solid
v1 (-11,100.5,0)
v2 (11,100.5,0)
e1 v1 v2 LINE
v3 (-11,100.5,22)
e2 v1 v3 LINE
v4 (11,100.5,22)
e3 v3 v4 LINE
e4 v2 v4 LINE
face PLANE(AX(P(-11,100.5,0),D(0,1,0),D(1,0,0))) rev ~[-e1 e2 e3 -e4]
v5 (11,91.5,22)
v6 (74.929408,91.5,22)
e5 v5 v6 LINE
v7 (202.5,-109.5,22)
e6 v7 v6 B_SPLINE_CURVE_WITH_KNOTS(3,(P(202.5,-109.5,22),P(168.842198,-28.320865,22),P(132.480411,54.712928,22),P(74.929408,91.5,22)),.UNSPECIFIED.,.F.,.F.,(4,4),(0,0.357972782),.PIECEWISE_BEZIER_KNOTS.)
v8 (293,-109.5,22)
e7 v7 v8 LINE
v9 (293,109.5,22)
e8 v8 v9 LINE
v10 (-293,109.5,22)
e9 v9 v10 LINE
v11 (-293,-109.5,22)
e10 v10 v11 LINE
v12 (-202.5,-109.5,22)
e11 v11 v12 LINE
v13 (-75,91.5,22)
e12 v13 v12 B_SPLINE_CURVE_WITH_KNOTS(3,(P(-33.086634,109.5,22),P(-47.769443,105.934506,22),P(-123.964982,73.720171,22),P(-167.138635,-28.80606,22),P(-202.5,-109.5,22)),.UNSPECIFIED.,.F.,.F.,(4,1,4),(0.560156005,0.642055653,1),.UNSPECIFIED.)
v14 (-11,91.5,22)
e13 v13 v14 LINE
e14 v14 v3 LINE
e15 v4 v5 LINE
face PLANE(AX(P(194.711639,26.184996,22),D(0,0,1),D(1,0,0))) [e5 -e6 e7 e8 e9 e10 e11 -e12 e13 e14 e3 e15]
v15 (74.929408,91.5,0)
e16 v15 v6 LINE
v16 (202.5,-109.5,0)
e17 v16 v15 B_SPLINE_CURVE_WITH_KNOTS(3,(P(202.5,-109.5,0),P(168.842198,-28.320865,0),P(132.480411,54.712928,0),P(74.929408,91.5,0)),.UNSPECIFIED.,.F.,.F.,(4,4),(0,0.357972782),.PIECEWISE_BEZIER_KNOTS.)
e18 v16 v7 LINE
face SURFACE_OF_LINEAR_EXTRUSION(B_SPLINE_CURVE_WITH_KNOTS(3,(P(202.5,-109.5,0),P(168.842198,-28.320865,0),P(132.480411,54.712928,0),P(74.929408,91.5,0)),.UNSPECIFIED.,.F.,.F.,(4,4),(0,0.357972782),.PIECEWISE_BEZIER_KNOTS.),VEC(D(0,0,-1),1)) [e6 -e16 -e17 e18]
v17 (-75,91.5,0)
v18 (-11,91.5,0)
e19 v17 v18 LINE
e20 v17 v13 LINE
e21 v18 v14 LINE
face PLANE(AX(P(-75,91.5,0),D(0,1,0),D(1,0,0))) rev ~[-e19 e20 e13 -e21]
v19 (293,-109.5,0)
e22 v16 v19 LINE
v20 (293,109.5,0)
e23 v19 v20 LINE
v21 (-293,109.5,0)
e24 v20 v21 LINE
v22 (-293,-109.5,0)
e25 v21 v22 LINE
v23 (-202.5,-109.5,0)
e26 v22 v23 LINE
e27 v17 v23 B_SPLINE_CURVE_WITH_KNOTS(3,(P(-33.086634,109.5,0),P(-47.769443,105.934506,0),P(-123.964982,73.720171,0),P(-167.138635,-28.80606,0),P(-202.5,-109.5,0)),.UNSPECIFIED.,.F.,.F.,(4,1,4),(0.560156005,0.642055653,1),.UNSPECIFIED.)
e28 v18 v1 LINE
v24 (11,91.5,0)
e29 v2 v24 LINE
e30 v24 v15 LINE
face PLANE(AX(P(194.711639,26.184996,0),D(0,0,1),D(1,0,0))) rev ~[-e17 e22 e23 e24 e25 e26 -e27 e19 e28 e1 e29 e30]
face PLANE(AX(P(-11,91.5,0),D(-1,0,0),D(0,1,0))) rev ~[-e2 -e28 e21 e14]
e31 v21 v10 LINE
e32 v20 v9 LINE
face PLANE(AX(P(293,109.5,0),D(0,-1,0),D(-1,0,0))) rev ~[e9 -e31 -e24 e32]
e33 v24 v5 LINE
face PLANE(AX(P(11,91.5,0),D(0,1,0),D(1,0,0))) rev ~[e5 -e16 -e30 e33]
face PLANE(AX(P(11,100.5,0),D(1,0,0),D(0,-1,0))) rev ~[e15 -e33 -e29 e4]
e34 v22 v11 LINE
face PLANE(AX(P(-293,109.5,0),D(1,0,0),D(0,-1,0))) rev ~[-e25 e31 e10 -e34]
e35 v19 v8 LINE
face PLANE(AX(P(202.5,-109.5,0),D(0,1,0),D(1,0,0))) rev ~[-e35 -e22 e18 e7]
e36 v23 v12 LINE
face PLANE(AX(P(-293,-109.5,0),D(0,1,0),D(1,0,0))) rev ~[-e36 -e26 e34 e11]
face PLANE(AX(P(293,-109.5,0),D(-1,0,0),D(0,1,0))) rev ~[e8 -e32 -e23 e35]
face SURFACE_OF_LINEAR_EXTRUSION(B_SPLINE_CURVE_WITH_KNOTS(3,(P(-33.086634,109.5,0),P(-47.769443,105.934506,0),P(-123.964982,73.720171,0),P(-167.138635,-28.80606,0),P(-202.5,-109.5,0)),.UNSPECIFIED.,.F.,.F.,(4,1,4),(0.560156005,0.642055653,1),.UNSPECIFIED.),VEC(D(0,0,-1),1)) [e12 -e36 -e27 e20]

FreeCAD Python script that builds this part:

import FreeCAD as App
import Part
import Sketcher
from FreeCAD import Vector

doc = App.newDocument("Part")
body = doc.addObject("PartDesign::Body", "Body")

sketch1 = doc.addObject("Sketcher::SketchObject", "Sketch")
body.addObject(sketch1)
sketch1.AttachmentSupport = (doc.XY_Plane, [""])
sketch1.MapMode = "FlatFace"
sketch1.addGeometry([
    Part.LineSegment(Vector(202.5, -109.5, 0), Vector(293, -109.5, 0)),
    Part.LineSegment(Vector(293, -109.5, 0), Vector(293, 109.5, 0)),
    Part.LineSegment(Vector(293, 109.5, 0), Vector(-293, 109.5, 0)),
    Part.LineSegment(Vector(-293, 109.5, 0), Vector(-293, -109.5, 0)),
    Part.LineSegment(Vector(-293, -109.5, 0), Vector(-202.5, -109.5, 0)),
    Part.BSplineCurve([Vector(-75, 91.5, 0), Vector(-132.003984, 54.629625, 0), Vector(-167.138635, -28.80606, 0), Vector(-202.5, -109.5, 0)], [4, 4], [0.642055653, 1], False, 3, [1, 1, 1, 1], False),
    Part.LineSegment(Vector(-75, 91.5, 0), Vector(-11, 91.5, 0)),
    Part.LineSegment(Vector(-11, 91.5, 0), Vector(-11, 100.5, 0)),
    Part.LineSegment(Vector(-11, 100.5, 0), Vector(11, 100.5, 0)),
    Part.LineSegment(Vector(11, 100.5, 0), Vector(11, 91.5, 0)),
    Part.LineSegment(Vector(11, 91.5, 0), Vector(74.929408, 91.5, 0)),
    Part.BSplineCurve([Vector(202.5, -109.5, 0), Vector(168.842198, -28.320865, 0), Vector(132.480411, 54.712928, 0), Vector(74.929408, 91.5, 0)], [4, 4], [0, 0.357972782], False, 3, [1, 1, 1, 1], False),
], False)
sketch1.addConstraint([
    Sketcher.Constraint("Block", 5),
    Sketcher.Constraint("Block", 11),
    Sketcher.Constraint("Coincident", 0, 2, 1, 1),
    Sketcher.Constraint("Coincident", 1, 2, 2, 1),
    Sketcher.Constraint("Coincident", 2, 2, 3, 1),
    Sketcher.Constraint("Coincident", 3, 2, 4, 1),
    Sketcher.Constraint("Coincident", 4, 2, 5, 2),
    Sketcher.Constraint("Coincident", 5, 1, 6, 1),
    Sketcher.Constraint("Coincident", 6, 2, 7, 1),
    Sketcher.Constraint("Coincident", 7, 2, 8, 1),
    Sketcher.Constraint("Coincident", 8, 2, 9, 1),
    Sketcher.Constraint("Coincident", 9, 2, 10, 1),
    Sketcher.Constraint("Coincident", 10, 2, 11, 2),
    Sketcher.Constraint("Coincident", 11, 1, 0, 1),
    Sketcher.Constraint("Horizontal", 0),
    Sketcher.Constraint("Vertical", 1),
    Sketcher.Constraint("Horizontal", 2),
    Sketcher.Constraint("Vertical", 3),
    Sketcher.Constraint("Horizontal", 4),
    Sketcher.Constraint("Horizontal", 6),
    Sketcher.Constraint("Vertical", 7),
    Sketcher.Constraint("Horizontal", 8),
    Sketcher.Constraint("Vertical", 9),
    Sketcher.Constraint("Horizontal", 10),
    Sketcher.Constraint("Symmetric", 0, 2, 2, 2, -1, 1),
    Sketcher.Constraint("DistanceX", 2, 2, 2, 1, 586.0),
    Sketcher.Constraint("DistanceX", 6, 1, 6, 2, 64.0),
    Sketcher.Constraint("DistanceX", 8, 1, 8, 2, 22.0),
    Sketcher.Constraint("DistanceY", 7, 1, 7, 2, 9.0),
])
pad1 = doc.addObject("PartDesign::Pad", "Pad")
body.addObject(pad1)
pad1.Profile = sketch1
pad1.Length = 22

doc.recompute()
